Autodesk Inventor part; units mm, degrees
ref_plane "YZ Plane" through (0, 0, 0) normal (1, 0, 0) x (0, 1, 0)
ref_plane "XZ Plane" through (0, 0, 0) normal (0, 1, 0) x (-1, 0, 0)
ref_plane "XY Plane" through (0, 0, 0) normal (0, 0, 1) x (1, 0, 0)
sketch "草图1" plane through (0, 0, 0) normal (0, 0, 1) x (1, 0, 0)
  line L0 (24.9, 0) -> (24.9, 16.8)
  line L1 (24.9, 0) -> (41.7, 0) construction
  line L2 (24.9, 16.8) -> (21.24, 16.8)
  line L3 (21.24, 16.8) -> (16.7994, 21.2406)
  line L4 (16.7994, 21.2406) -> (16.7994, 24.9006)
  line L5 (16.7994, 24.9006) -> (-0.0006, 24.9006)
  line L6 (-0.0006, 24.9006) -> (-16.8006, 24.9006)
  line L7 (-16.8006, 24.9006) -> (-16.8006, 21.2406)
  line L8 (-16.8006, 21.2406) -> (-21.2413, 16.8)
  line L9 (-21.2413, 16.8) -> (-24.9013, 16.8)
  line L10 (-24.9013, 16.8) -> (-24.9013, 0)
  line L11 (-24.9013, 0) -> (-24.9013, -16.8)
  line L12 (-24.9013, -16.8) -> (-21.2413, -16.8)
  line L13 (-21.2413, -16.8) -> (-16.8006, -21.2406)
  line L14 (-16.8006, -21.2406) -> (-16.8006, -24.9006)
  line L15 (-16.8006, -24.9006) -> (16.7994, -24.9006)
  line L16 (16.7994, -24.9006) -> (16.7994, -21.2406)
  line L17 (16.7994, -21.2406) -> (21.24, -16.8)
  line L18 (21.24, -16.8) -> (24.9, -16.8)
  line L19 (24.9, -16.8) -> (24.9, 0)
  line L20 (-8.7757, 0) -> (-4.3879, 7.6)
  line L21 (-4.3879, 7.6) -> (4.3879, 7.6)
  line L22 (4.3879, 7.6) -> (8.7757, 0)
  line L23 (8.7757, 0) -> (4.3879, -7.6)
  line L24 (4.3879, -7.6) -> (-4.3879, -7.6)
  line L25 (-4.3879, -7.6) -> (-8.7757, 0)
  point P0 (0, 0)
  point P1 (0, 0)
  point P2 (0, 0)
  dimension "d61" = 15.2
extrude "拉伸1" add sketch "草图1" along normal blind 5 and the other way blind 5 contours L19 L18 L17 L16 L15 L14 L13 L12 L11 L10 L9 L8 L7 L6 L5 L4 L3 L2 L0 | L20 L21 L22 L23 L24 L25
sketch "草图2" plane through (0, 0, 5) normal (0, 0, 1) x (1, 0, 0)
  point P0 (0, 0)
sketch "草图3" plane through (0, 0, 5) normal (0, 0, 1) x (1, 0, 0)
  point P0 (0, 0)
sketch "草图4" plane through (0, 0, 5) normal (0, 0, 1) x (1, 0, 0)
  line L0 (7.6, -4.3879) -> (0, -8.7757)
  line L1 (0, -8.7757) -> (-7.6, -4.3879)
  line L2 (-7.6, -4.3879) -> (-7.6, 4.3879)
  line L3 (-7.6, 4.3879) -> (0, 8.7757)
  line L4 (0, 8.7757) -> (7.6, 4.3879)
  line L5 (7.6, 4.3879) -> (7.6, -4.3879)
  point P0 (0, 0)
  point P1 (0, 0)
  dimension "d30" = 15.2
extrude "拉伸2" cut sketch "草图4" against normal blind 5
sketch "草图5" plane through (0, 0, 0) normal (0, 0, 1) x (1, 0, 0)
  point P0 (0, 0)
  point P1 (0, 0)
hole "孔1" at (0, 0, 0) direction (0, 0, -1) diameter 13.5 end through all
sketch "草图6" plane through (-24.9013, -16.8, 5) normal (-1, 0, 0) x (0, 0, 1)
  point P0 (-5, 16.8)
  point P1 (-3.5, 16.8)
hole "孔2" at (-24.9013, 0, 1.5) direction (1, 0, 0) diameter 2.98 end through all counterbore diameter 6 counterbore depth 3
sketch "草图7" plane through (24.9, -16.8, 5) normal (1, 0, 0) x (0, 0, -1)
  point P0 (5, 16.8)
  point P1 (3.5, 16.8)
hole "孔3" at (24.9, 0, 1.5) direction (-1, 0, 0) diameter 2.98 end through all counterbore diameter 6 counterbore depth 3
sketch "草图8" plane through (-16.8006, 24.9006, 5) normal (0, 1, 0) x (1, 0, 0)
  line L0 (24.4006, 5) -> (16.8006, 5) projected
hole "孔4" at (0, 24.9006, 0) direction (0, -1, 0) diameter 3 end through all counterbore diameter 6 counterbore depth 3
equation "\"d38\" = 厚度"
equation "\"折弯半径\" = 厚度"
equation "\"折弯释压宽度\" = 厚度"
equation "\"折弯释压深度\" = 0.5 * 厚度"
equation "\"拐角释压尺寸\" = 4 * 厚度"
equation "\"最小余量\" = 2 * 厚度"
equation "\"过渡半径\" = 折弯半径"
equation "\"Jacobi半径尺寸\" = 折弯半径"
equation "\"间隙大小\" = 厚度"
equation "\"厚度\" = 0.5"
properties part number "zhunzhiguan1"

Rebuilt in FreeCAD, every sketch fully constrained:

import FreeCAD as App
import Part
import Sketcher

V = App.Vector
Q = App.Units.Quantity

doc = App.newDocument("Part")
body = doc.addObject("PartDesign::Body", "Body")

# Sketch on XY plane
sketch1 = doc.addObject("Sketcher::SketchObject", "Sketch")
body.addObject(sketch1)
sketch1.AttachmentSupport = (doc.XY_Plane, [""])
sketch1.MapMode = "FlatFace"
sketch1.addGeometry([
    Part.LineSegment(V(24.9, -16.8, 0), V(24.9, 16.8, 0)),  # 0
    Part.LineSegment(V(24.9, 16.8, 0), V(21.2, 16.8, 0)),  # 1
    Part.LineSegment(V(21.2, 16.8, 0), V(16.8, 21.2, 0)),  # 2
    Part.LineSegment(V(16.8, 21.2, 0), V(16.8, 24.9, 0)),  # 3
    Part.LineSegment(V(16.8, 24.9, 0), V(-16.8, 24.9, 0)),  # 4
    Part.LineSegment(V(-16.8, 24.9, 0), V(-16.8, 21.2, 0)),  # 5
    Part.LineSegment(V(-16.8, 21.2, 0), V(-21.2, 16.8, 0)),  # 6
    Part.LineSegment(V(-21.2, 16.8, 0), V(-24.9, 16.8, 0)),  # 7
    Part.LineSegment(V(-24.9, 16.8, 0), V(-24.9, -16.8, 0)),  # 8
    Part.LineSegment(V(-24.9, -16.8, 0), V(-21.2, -16.8, 0)),  # 9
    Part.LineSegment(V(-21.2, -16.8, 0), V(-16.8, -21.2, 0)),  # 10
    Part.LineSegment(V(-16.8, -21.2, 0), V(-16.8, -24.9, 0)),  # 11
    Part.LineSegment(V(-16.8, -24.9, 0), V(16.8, -24.9, 0)),  # 12
    Part.LineSegment(V(16.8, -24.9, 0), V(16.8, -21.2, 0)),  # 13
    Part.LineSegment(V(16.8, -21.2, 0), V(21.2, -16.8, 0)),  # 14
    Part.LineSegment(V(21.2, -16.8, 0), V(24.9, -16.8, 0)),  # 15
], False)
sketch1.addConstraint([
    Sketcher.Constraint("Coincident", 0, 2, 1, 1),
    Sketcher.Constraint("Coincident", 1, 2, 2, 1),
    Sketcher.Constraint("Coincident", 2, 2, 3, 1),
    Sketcher.Constraint("Coincident", 3, 2, 4, 1),
    Sketcher.Constraint("Coincident", 4, 2, 5, 1),
    Sketcher.Constraint("Coincident", 5, 2, 6, 1),
    Sketcher.Constraint("Coincident", 6, 2, 7, 1),
    Sketcher.Constraint("Coincident", 7, 2, 8, 1),
    Sketcher.Constraint("Coincident", 8, 2, 9, 1),
    Sketcher.Constraint("Coincident", 9, 2, 10, 1),
    Sketcher.Constraint("Coincident", 10, 2, 11, 1),
    Sketcher.Constraint("Coincident", 11, 2, 12, 1),
    Sketcher.Constraint("Coincident", 12, 2, 13, 1),
    Sketcher.Constraint("Coincident", 13, 2, 14, 1),
    Sketcher.Constraint("Coincident", 14, 2, 15, 1),
    Sketcher.Constraint("Coincident", 15, 2, 0, 1),
    Sketcher.Constraint("Vertical", 0),
    Sketcher.Constraint("Horizontal", 1),
    Sketcher.Constraint("Vertical", 3),
    Sketcher.Constraint("Horizontal", 4),
    Sketcher.Constraint("Vertical", 5),
    Sketcher.Constraint("Horizontal", 7),
    Sketcher.Constraint("Vertical", 8),
    Sketcher.Constraint("Horizontal", 9),
    Sketcher.Constraint("Vertical", 11),
    Sketcher.Constraint("Horizontal", 12),
    Sketcher.Constraint("Vertical", 13),
    Sketcher.Constraint("Horizontal", 15),
    Sketcher.Constraint("Symmetric", 6, 2, 9, 2, -1),
    Sketcher.Constraint("Symmetric", 5, 2, 10, 2, -1),
    Sketcher.Constraint("Symmetric", 3, 2, 12, 2, -1),
    Sketcher.Constraint("Symmetric", 1, 2, 14, 2, -1),
    Sketcher.Constraint("Perpendicular", 2, 6),
    Sketcher.Constraint("Perpendicular", 6, 10),
    Sketcher.Constraint("Perpendicular", 10, 14),
    Sketcher.Constraint("Horizontal", 2, 2, 5, 2),
    Sketcher.Constraint("Horizontal", 1, 2, 6, 2),
    Sketcher.Constraint("Equal", 1, 7),
    Sketcher.Constraint("Equal", 12, 0),
    Sketcher.Constraint("Equal", 15, 3),
    Sketcher.Constraint("DistanceX", 4, 2, 4, 1, Q("33.6 mm")),
    Sketcher.Constraint("DistanceX", 1, 2, 1, 1, Q("3.66 mm")),
    Sketcher.Constraint("DistanceX", -1, 1, 0, 2, Q("24.9 mm")),
    Sketcher.Constraint("Distance", 2, Q("6.28 mm")),
])
pad1 = doc.addObject("PartDesign::Pad", "Pad")
body.addObject(pad1)
pad1.Profile = sketch1
pad1.Type = "TwoLengths"
pad1.Length = 5
pad1.Length2 = 5

# Sketch on XY plane
sketch2 = doc.addObject("Sketcher::SketchObject", "Sketch001")
body.addObject(sketch2)
sketch2.AttachmentSupport = (doc.XY_Plane, [""])
sketch2.MapMode = "FlatFace"
sketch2.AttachmentOffset = App.Placement(V(0, 0, 5), App.Rotation())
sketch2.addGeometry([
    Part.LineSegment(V(0, -9, 0), V(8, -4, 0)),  # 0
    Part.LineSegment(V(8, -4, 0), V(8, 4, 0)),  # 1
    Part.LineSegment(V(8, 4, 0), V(0, 9, 0)),  # 2
    Part.LineSegment(V(0, 9, 0), V(-8, 4, 0)),  # 3
    Part.LineSegment(V(-8, 4, 0), V(-8, -4, 0)),  # 4
    Part.LineSegment(V(-8, -4, 0), V(0, -9, 0)),  # 5
], False)
sketch2.addConstraint([
    Sketcher.Constraint("Coincident", 0, 2, 1, 1),
    Sketcher.Constraint("Coincident", 1, 2, 2, 1),
    Sketcher.Constraint("Coincident", 2, 2, 3, 1),
    Sketcher.Constraint("Coincident", 3, 2, 4, 1),
    Sketcher.Constraint("Coincident", 4, 2, 5, 1),
    Sketcher.Constraint("Coincident", 5, 2, 0, 1),
    Sketcher.Constraint("Vertical", 1),
    Sketcher.Constraint("Vertical", 4),
    Sketcher.Constraint("Symmetric", 0, 2, 3, 2, -1, 1),
    Sketcher.Constraint("Symmetric", 2, 2, 5, 2, -1, 1),
    Sketcher.Constraint("PointOnObject", 2, 2, -2),
    Sketcher.Constraint("Parallel", 2, 5),
    Sketcher.Constraint("Horizontal", 1, 2, 3, 2),
    Sketcher.Constraint("DistanceX", 3, 2, 1, 2, Q("15.2 mm")),
    Sketcher.Constraint("Angle", 0, Q("29.9996 deg")),
    Sketcher.Constraint("DistanceY", 1, 1, 1, 2, Q("8.7758 mm")),
])
pocket1 = doc.addObject("PartDesign::Pocket", "Pocket")
body.addObject(pocket1)
pocket1.Profile = sketch2
pocket1.Length = 5

# Sketch on XY plane
sketch3 = doc.addObject("Sketcher::SketchObject", "Sketch002")
body.addObject(sketch3)
sketch3.AttachmentSupport = (doc.XY_Plane, [""])
sketch3.MapMode = "FlatFace"
sketch3.addGeometry(Part.Circle(V(0, 0, 0), V(0, 0, 1), 7), False)
sketch3.addConstraint([
    Sketcher.Constraint("Coincident", 0, 3, -1, 1),
    Sketcher.Constraint("Diameter", 0, Q("13.5 mm")),
])
doc.recompute()
hole = doc.addObject("PartDesign::Hole", "Hole")
body.addObject(hole)
hole.Profile = sketch3
hole.ThreadType = "None"
hole.Diameter = 13.5
hole.DepthType = "ThroughAll"

# Sketch on YZ plane
sketch4 = doc.addObject("Sketcher::SketchObject", "Sketch003")
body.addObject(sketch4)
sketch4.AttachmentSupport = (doc.YZ_Plane, [""])
sketch4.MapMode = "FlatFace"
sketch4.AttachmentOffset = App.Placement(V(0, 0, -24.9013), App.Rotation())
sketch4.addGeometry(Part.Circle(V(0, 1.5, 0), V(0, 0, 1), 1.5), False)
sketch4.addConstraint([
    Sketcher.Constraint("PointOnObject", 0, 3, -2),
    Sketcher.Constraint("Diameter", 0, Q("2.98 mm")),
    Sketcher.Constraint("DistanceY", -1, 1, 0, 3, Q("1.5 mm")),
])
doc.recompute()
hole2 = doc.addObject("PartDesign::Hole", "Hole001")
body.addObject(hole2)
hole2.Profile = sketch4
hole2.ThreadType = "None"
hole2.Diameter = 2.98
hole2.DepthType = "ThroughAll"
hole2.HoleCutType = "Counterbore"
hole2.HoleCutDiameter = 6
hole2.HoleCutDepth = 3
hole2.Reversed = True

# Sketch on YZ plane
sketch5 = doc.addObject("Sketcher::SketchObject", "Sketch004")
body.addObject(sketch5)
sketch5.AttachmentSupport = (doc.YZ_Plane, [""])
sketch5.MapMode = "FlatFace"
sketch5.AttachmentOffset = App.Placement(V(0, 0, 24.9), App.Rotation())
sketch5.addGeometry(Part.Circle(V(0, 1.5, 0), V(0, 0, 1), 1.5), False)
sketch5.addConstraint([
    Sketcher.Constraint("PointOnObject", 0, 3, -2),
    Sketcher.Constraint("Diameter", 0, Q("2.98 mm")),
    Sketcher.Constraint("DistanceY", -1, 1, 0, 3, Q("1.5 mm")),
])
doc.recompute()
hole3 = doc.addObject("PartDesign::Hole", "Hole002")
body.addObject(hole3)
hole3.Profile = sketch5
hole3.ThreadType = "None"
hole3.Diameter = 2.98
hole3.DepthType = "ThroughAll"
hole3.HoleCutType = "Counterbore"
hole3.HoleCutDiameter = 6
hole3.HoleCutDepth = 3

# Sketch on XZ plane
sketch6 = doc.addObject("Sketcher::SketchObject", "Sketch005")
body.addObject(sketch6)
sketch6.AttachmentSupport = (doc.XZ_Plane, [""])
sketch6.MapMode = "FlatFace"
sketch6.AttachmentOffset = App.Placement(V(0, 0, -24.9006), App.Rotation())
sketch6.addGeometry(Part.Circle(V(0, 0, 0), V(0, 0, 1), 1.5), False)
sketch6.addConstraint([
    Sketcher.Constraint("Coincident", 0, 3, -1, 1),
    Sketcher.Constraint("Diameter", 0, Q("3 mm")),
])
doc.recompute()
hole4 = doc.addObject("PartDesign::Hole", "Hole003")
body.addObject(hole4)
hole4.Profile = sketch6
hole4.ThreadType = "None"
hole4.Diameter = 3
hole4.DepthType = "ThroughAll"
hole4.HoleCutType = "Counterbore"
hole4.HoleCutDiameter = 6
hole4.HoleCutDepth = 3
hole4.Reversed = True

doc.recompute()
